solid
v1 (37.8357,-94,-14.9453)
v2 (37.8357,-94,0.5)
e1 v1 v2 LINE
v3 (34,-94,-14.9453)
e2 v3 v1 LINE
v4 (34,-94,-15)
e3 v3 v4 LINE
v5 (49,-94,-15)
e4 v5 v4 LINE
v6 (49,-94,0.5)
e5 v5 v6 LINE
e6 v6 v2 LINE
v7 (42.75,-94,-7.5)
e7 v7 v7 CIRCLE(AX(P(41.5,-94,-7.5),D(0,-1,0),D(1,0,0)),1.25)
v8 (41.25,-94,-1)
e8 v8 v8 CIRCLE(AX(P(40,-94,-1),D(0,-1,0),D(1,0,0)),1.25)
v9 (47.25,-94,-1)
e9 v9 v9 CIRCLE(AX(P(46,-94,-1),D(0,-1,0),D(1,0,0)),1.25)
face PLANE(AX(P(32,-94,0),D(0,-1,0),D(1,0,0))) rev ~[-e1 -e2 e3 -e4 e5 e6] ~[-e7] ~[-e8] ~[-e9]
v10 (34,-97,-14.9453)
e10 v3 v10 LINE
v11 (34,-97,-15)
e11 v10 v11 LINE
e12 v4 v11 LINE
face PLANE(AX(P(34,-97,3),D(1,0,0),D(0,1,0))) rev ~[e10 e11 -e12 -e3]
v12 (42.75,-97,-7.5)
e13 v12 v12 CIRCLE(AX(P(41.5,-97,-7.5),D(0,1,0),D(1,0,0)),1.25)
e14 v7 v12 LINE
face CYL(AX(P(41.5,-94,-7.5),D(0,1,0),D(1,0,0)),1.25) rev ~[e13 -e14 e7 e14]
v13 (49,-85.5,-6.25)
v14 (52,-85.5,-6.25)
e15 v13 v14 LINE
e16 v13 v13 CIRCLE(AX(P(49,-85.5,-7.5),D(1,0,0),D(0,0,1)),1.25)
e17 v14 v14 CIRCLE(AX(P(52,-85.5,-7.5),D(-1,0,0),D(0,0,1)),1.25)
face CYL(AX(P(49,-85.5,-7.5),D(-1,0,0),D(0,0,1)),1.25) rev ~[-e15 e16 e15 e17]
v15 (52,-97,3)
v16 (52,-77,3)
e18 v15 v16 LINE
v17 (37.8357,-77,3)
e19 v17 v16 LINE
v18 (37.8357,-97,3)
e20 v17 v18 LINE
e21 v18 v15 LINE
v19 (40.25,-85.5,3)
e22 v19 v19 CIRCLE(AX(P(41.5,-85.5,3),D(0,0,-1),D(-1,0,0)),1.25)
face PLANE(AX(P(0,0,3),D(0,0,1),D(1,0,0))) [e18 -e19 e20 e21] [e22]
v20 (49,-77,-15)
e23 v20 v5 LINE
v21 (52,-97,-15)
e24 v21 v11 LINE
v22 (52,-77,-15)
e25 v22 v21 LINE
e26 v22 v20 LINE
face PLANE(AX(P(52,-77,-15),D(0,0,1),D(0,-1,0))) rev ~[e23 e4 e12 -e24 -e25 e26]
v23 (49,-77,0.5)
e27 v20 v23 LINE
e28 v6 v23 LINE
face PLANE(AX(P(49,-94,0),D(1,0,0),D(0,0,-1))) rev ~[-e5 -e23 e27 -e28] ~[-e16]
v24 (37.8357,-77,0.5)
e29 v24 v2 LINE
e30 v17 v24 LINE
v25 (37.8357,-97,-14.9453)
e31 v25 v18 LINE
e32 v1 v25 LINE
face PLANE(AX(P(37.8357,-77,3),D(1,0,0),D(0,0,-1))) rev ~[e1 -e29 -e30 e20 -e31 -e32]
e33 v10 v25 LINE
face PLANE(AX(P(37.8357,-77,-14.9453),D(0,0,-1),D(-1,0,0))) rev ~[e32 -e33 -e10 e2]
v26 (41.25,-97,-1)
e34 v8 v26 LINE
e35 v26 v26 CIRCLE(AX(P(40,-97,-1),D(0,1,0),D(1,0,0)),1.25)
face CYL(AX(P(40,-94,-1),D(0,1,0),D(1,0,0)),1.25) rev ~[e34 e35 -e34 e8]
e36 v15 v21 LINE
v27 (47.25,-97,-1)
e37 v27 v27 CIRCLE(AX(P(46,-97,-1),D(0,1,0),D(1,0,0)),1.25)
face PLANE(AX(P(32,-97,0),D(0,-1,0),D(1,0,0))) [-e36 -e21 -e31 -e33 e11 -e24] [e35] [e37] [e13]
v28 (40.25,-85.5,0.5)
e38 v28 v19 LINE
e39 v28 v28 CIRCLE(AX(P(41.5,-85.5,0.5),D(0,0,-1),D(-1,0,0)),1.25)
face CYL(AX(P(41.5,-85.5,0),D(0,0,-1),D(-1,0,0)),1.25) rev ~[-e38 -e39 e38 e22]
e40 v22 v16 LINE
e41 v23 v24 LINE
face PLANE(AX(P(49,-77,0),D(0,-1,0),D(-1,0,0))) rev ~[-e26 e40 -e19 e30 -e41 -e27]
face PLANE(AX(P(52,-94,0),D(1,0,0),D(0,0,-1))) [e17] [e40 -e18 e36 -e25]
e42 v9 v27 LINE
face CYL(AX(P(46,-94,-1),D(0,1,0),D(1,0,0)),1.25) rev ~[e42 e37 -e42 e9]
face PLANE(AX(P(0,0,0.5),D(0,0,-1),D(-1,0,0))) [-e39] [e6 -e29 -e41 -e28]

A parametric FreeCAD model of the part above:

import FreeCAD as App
import Part
import Sketcher
Q = App.Units.Quantity

doc = App.newDocument("Part")
body = doc.addObject("PartDesign::Body", "Body")

# Sketch on XY plane
sketch1 = body.newObject("Sketcher::SketchObject", "Sketch")
sketch1.AttachmentSupport = (doc.getObject("XY_Plane"), [""])
sketch1.MapMode = "FlatFace"
sketch1.addGeometry([
    Part.LineSegment(App.Vector(49, -77, 0), App.Vector(29, -77, 0)),
    Part.LineSegment(App.Vector(29, -77, 0), App.Vector(29, -94, 0)),
    Part.LineSegment(App.Vector(29, -94, 0), App.Vector(49, -94, 0)),
    Part.LineSegment(App.Vector(49, -94, 0), App.Vector(49, -77, 0)),
], False)
sketch1.addConstraint([
    Sketcher.Constraint("Coincident", 0, 2, 1, 1),
    Sketcher.Constraint("Coincident", 1, 2, 2, 1),
    Sketcher.Constraint("Coincident", 2, 2, 3, 1),
    Sketcher.Constraint("Coincident", 3, 2, 0, 1),
    Sketcher.Constraint("Horizontal", 0),
    Sketcher.Constraint("Vertical", 1),
    Sketcher.Constraint("Horizontal", 2),
    Sketcher.Constraint("Vertical", 3),
    Sketcher.Constraint("DistanceX", 0, 2, 0, 1, Q("20 mm")),
    Sketcher.Constraint("DistanceY", 1, 2, 1, 1, Q("17 mm")),
    Sketcher.Constraint("DistanceX", -1, 1, 0, 2, Q("29 mm")),
    Sketcher.Constraint("DistanceY", 0, 2, -1, 1, Q("77 mm")),
])
pad1 = body.newObject("PartDesign::Pad", "Pad")
pad1.Profile = sketch1
pad1.Length = 3

# Sketch on YZ plane
sketch2 = body.newObject("Sketcher::SketchObject", "Sketch001")
sketch2.AttachmentSupport = (doc.getObject("YZ_Plane"), [""])
sketch2.MapMode = "FlatFace"
sketch2.AttachmentOffset = App.Placement(App.Vector(0, 0, 49), App.Rotation())
sketch2.addGeometry([
    Part.LineSegment(App.Vector(-77, -22, 0), App.Vector(-77, 3, 0)),
    Part.LineSegment(App.Vector(-77, 3, 0), App.Vector(-94, 3, 0)),
    Part.LineSegment(App.Vector(-94, 3, 0), App.Vector(-94, -22, 0)),
    Part.LineSegment(App.Vector(-94, -22, 0), App.Vector(-77, -22, 0)),
], False)
sketch2.addConstraint([
    Sketcher.Constraint("Coincident", 0, 2, 1, 1),
    Sketcher.Constraint("Coincident", 1, 2, 2, 1),
    Sketcher.Constraint("Coincident", 2, 2, 3, 1),
    Sketcher.Constraint("Coincident", 3, 2, 0, 1),
    Sketcher.Constraint("Vertical", 0),
    Sketcher.Constraint("Horizontal", 1),
    Sketcher.Constraint("Vertical", 2),
    Sketcher.Constraint("Horizontal", 3),
    Sketcher.Constraint("DistanceY", 0, 1, 0, 2, Q("25 mm")),
    Sketcher.Constraint("DistanceX", 1, 2, 1, 1, Q("17 mm")),
    Sketcher.Constraint("DistanceX", 0, 2, -1, 1, Q("77 mm")),
    Sketcher.Constraint("DistanceY", -1, 1, 0, 2, Q("3 mm")),
])
pad2 = body.newObject("PartDesign::Pad", "Pad001")
pad2.Profile = sketch2
pad2.Length = 3

# Sketch on XZ plane
sketch3 = body.newObject("Sketcher::SketchObject", "Sketch002")
sketch3.AttachmentSupport = (doc.getObject("XZ_Plane"), [""])
sketch3.MapMode = "FlatFace"
sketch3.AttachmentOffset = App.Placement(App.Vector(0, 0, 94), App.Rotation())
sketch3.addGeometry([
    Part.LineSegment(App.Vector(52, -22, 0), App.Vector(52, 3, 0)),
    Part.LineSegment(App.Vector(52, 3, 0), App.Vector(29, 3, 0)),
    Part.LineSegment(App.Vector(29, 3, 0), App.Vector(29, -22, 0)),
    Part.LineSegment(App.Vector(29, -22, 0), App.Vector(52, -22, 0)),
], False)
sketch3.addConstraint([
    Sketcher.Constraint("Coincident", 0, 2, 1, 1),
    Sketcher.Constraint("Coincident", 1, 2, 2, 1),
    Sketcher.Constraint("Coincident", 2, 2, 3, 1),
    Sketcher.Constraint("Coincident", 3, 2, 0, 1),
    Sketcher.Constraint("Vertical", 0),
    Sketcher.Constraint("Horizontal", 1),
    Sketcher.Constraint("Vertical", 2),
    Sketcher.Constraint("Horizontal", 3),
    Sketcher.Constraint("DistanceX", 1, 2, 1, 1, Q("23 mm")),
    Sketcher.Constraint("DistanceY", 0, 1, 0, 2, Q("25 mm")),
    Sketcher.Constraint("DistanceX", -1, 1, 0, 2, Q("52 mm")),
    Sketcher.Constraint("DistanceY", -1, 1, 0, 2, Q("3 mm")),
])
pad3 = body.newObject("PartDesign::Pad", "Pad002")
pad3.Profile = sketch3
pad3.Length = 3

# Sketch on XY plane
sketch4 = body.newObject("Sketcher::SketchObject", "Sketch003")
sketch4.AttachmentSupport = (doc.getObject("XY_Plane"), [""])
sketch4.MapMode = "FlatFace"
sketch4.AttachmentOffset = App.Placement(App.Vector(0, 0, 3), App.Rotation())
sketch4.addGeometry([
    Part.LineSegment(App.Vector(29, -77, 0), App.Vector(29, -97, 0)),
    Part.LineSegment(App.Vector(29, -97, 0), App.Vector(34, -97, 0)),
    Part.LineSegment(App.Vector(34, -97, 0), App.Vector(34, -77, 0)),
    Part.LineSegment(App.Vector(34, -77, 0), App.Vector(29, -77, 0)),
], False)
sketch4.addConstraint([
    Sketcher.Constraint("Coincident", 0, 2, 1, 1),
    Sketcher.Constraint("Coincident", 1, 2, 2, 1),
    Sketcher.Constraint("Coincident", 2, 2, 3, 1),
    Sketcher.Constraint("Coincident", 3, 2, 0, 1),
    Sketcher.Constraint("Vertical", 0),
    Sketcher.Constraint("Horizontal", 1),
    Sketcher.Constraint("Vertical", 2),
    Sketcher.Constraint("Horizontal", 3),
    Sketcher.Constraint("DistanceX", 1, 1, 1, 2, Q("5 mm")),
    Sketcher.Constraint("DistanceY", 0, 2, 0, 1, Q("20 mm")),
    Sketcher.Constraint("DistanceX", -1, 1, 0, 2, Q("29 mm")),
    Sketcher.Constraint("DistanceY", 0, 2, -1, 1, Q("97 mm")),
])
pocket1 = body.newObject("PartDesign::Pocket", "Pocket")
pocket1.Profile = sketch4
pocket1.Length = 50

# Sketch on YZ plane
sketch5 = body.newObject("Sketcher::SketchObject", "Sketch004")
sketch5.AttachmentSupport = (doc.getObject("YZ_Plane"), [""])
sketch5.MapMode = "FlatFace"
sketch5.AttachmentOffset = App.Placement(App.Vector(0, 0, 52), App.Rotation())
sketch5.addGeometry([
    Part.LineSegment(App.Vector(-77, -15, 0), App.Vector(-97, -15, 0)),
    Part.LineSegment(App.Vector(-97, -15, 0), App.Vector(-97, -22, 0)),
    Part.LineSegment(App.Vector(-97, -22, 0), App.Vector(-77, -22, 0)),
    Part.LineSegment(App.Vector(-77, -22, 0), App.Vector(-77, -15, 0)),
], False)
sketch5.addConstraint([
    Sketcher.Constraint("Coincident", 0, 2, 1, 1),
    Sketcher.Constraint("Coincident", 1, 2, 2, 1),
    Sketcher.Constraint("Coincident", 2, 2, 3, 1),
    Sketcher.Constraint("Coincident", 3, 2, 0, 1),
    Sketcher.Constraint("Horizontal", 0),
    Sketcher.Constraint("Vertical", 1),
    Sketcher.Constraint("Horizontal", 2),
    Sketcher.Constraint("Vertical", 3),
    Sketcher.Constraint("DistanceX", 0, 2, 0, 1, Q("20 mm")),
    Sketcher.Constraint("DistanceY", 1, 2, 1, 1, Q("7 mm")),
    Sketcher.Constraint("DistanceX", 0, 2, -1, 1, Q("97 mm")),
    Sketcher.Constraint("DistanceY", 0, 2, -1, 1, Q("15 mm")),
])
pocket2 = body.newObject("PartDesign::Pocket", "Pocket001")
pocket2.Profile = sketch5
pocket2.Length = 50

# Sketch on XZ plane
sketch6 = body.newObject("Sketcher::SketchObject", "Sketch005")
sketch6.AttachmentSupport = (doc.getObject("XZ_Plane"), [""])
sketch6.MapMode = "FlatFace"
sketch6.AttachmentOffset = App.Placement(App.Vector(0, 0, 94), App.Rotation())
sketch6.addGeometry([
    Part.Circle(App.Vector(46, -1, 0), App.Vector(0, 0, 1), 1.2),
    Part.Circle(App.Vector(40, -1, 0), App.Vector(0, 0, 1), 1.2),
], False)
sketch6.addConstraint([
    Sketcher.Constraint("Equal", 0, 1),
    Sketcher.Constraint("Horizontal", 0, 3, 1, 3),
    Sketcher.Constraint("Diameter", 0, Q("2.5 mm")),
    Sketcher.Constraint("DistanceX", -1, 1, 0, 3, Q("46 mm")),
    Sketcher.Constraint("DistanceY", 0, 3, -1, 1, Q("1 mm")),
    Sketcher.Constraint("DistanceX", -1, 1, 1, 3, Q("40 mm")),
])
pocket3 = body.newObject("PartDesign::Pocket", "Pocket002")
pocket3.Profile = sketch6
pocket3.Length = 50
pocket3.Reversed = True

# Sketch on XY plane
sketch7 = body.newObject("Sketcher::SketchObject", "Sketch006")
sketch7.AttachmentSupport = (doc.getObject("XY_Plane"), [""])
sketch7.MapMode = "FlatFace"
sketch7.addGeometry(Part.Circle(App.Vector(41.5, -85.5, 0), App.Vector(0, 0, 1), 1.2), False)
sketch7.addConstraint([
    Sketcher.Constraint("Diameter", 0, Q("2.5 mm")),
    Sketcher.Constraint("DistanceX", -1, 1, 0, 3, Q("41.5 mm")),
    Sketcher.Constraint("DistanceY", 0, 3, -1, 1, Q("85.5 mm")),
])
pocket4 = body.newObject("PartDesign::Pocket", "Pocket003")
pocket4.Profile = sketch7
pocket4.Length = 50
pocket4.Reversed = True

# Sketch on YZ plane
sketch8 = body.newObject("Sketcher::SketchObject", "Sketch007")
sketch8.AttachmentSupport = (doc.getObject("YZ_Plane"), [""])
sketch8.MapMode = "FlatFace"
sketch8.AttachmentOffset = App.Placement(App.Vector(0, 0, 49), App.Rotation())
sketch8.addGeometry(Part.Circle(App.Vector(-85.5, -7.5, 0), App.Vector(0, 0, 1), 1.2), False)
sketch8.addConstraint([
    Sketcher.Constraint("Diameter", 0, Q("2.5 mm")),
    Sketcher.Constraint("DistanceX", 0, 3, -1, 1, Q("85.5 mm")),
    Sketcher.Constraint("DistanceY", 0, 3, -1, 1, Q("7.5 mm")),
])
pocket5 = body.newObject("PartDesign::Pocket", "Pocket004")
pocket5.Profile = sketch8
pocket5.Length = 50
pocket5.Reversed = True

# Sketch on XZ plane
sketch9 = body.newObject("Sketcher::SketchObject", "Sketch008")
sketch9.AttachmentSupport = (doc.getObject("XZ_Plane"), [""])
sketch9.MapMode = "FlatFace"
sketch9.AttachmentOffset = App.Placement(App.Vector(0, 0, 94), App.Rotation())
sketch9.addGeometry(Part.Circle(App.Vector(41.5, -7.5, 0), App.Vector(0, 0, 1), 1.2), False)
sketch9.addConstraint([
    Sketcher.Constraint("Diameter", 0, Q("2.5 mm")),
    Sketcher.Constraint("DistanceX", -1, 1, 0, 3, Q("41.5 mm")),
    Sketcher.Constraint("DistanceY", 0, 3, -1, 1, Q("7.5 mm")),
])
pocket6 = body.newObject("PartDesign::Pocket", "Pocket005")
pocket6.Profile = sketch9
pocket6.Length = 50
pocket6.Reversed = True

# Sketch on XY plane
sketch10 = body.newObject("Sketcher::SketchObject", "Sketch009")
sketch10.AttachmentSupport = (doc.getObject("XY_Plane"), [""])
sketch10.MapMode = "FlatFace"
sketch10.addGeometry([
    Part.LineSegment(App.Vector(49, -94, 0), App.Vector(34, -94, 0)),  # 0
    Part.LineSegment(App.Vector(34, -94, 0), App.Vector(34, -77, 0)),  # 1
    Part.LineSegment(App.Vector(34, -77, 0), App.Vector(49, -77, 0)),  # 2
    Part.LineSegment(App.Vector(49, -77, 0), App.Vector(49, -94, 0)),  # 3
    Part.Circle(App.Vector(41.5, -85.5, 0), App.Vector(0, 0, 1), 1.2),  # 4
], False)
sketch10.addConstraint([
    Sketcher.Constraint("Coincident", 0, 2, 1, 1),
    Sketcher.Constraint("Coincident", 1, 2, 2, 1),
    Sketcher.Constraint("Coincident", 2, 2, 3, 1),
    Sketcher.Constraint("Coincident", 3, 2, 0, 1),
    Sketcher.Constraint("Horizontal", 0),
    Sketcher.Constraint("Vertical", 1),
    Sketcher.Constraint("Horizontal", 2),
    Sketcher.Constraint("Vertical", 3),
    Sketcher.Constraint("Diameter", 4, Q("2.5 mm")),
    Sketcher.Constraint("DistanceX", 0, 2, 0, 1, Q("15 mm")),
    Sketcher.Constraint("DistanceY", 1, 1, 1, 2, Q("17 mm")),
    Sketcher.Constraint("DistanceX", -1, 1, 0, 2, Q("34 mm")),
    Sketcher.Constraint("DistanceY", 0, 2, -1, 1, Q("94 mm")),
    Sketcher.Constraint("DistanceX", -1, 1, 4, 3, Q("41.5 mm")),
    Sketcher.Constraint("DistanceY", 4, 3, -1, 1, Q("85.5 mm")),
])
pocket7 = body.newObject("PartDesign::Pocket", "Pocket006")
pocket7.Profile = sketch10
pocket7.Length = 0.5
pocket7.Reversed = True

# Sketch on XZ plane
sketch11 = body.newObject("Sketcher::SketchObject", "Sketch010")
sketch11.AttachmentSupport = (doc.getObject("XZ_Plane"), [""])
sketch11.MapMode = "FlatFace"
sketch11.AttachmentOffset = App.Placement(App.Vector(0, 0, 77), App.Rotation())
sketch11.addGeometry([
    Part.LineSegment(App.Vector(34, 3, 0), App.Vector(37.8, 3, 0)),
    Part.LineSegment(App.Vector(37.8, 3, 0), App.Vector(37.8, -14.9, 0)),
    Part.LineSegment(App.Vector(37.8, -14.9, 0), App.Vector(34, -14.9, 0)),
    Part.LineSegment(App.Vector(34, -14.9, 0), App.Vector(34, 3, 0)),
], False)
sketch11.addConstraint([
    Sketcher.Constraint("Coincident", 0, 2, 1, 1),
    Sketcher.Constraint("Coincident", 1, 2, 2, 1),
    Sketcher.Constraint("Coincident", 2, 2, 3, 1),
    Sketcher.Constraint("Coincident", 3, 2, 0, 1),
    Sketcher.Constraint("Horizontal", 0),
    Sketcher.Constraint("Vertical", 1),
    Sketcher.Constraint("Horizontal", 2),
    Sketcher.Constraint("Vertical", 3),
    Sketcher.Constraint("DistanceY", -1, 1, 0, 2, Q("3 mm")),
    Sketcher.Constraint("DistanceX", -1, 1, 2, 2, Q("34 mm")),
    Sketcher.Constraint("DistanceX", 0, 1, 0, 2, Q("3.8357 mm")),
    Sketcher.Constraint("DistanceY", 1, 2, 1, 1, Q("17.9453 mm")),
])
pocket8 = body.newObject("PartDesign::Pocket", "Pocket007")
pocket8.Profile = sketch11
pocket8.Length = 50
pocket8.Reversed = True

doc.recompute()
